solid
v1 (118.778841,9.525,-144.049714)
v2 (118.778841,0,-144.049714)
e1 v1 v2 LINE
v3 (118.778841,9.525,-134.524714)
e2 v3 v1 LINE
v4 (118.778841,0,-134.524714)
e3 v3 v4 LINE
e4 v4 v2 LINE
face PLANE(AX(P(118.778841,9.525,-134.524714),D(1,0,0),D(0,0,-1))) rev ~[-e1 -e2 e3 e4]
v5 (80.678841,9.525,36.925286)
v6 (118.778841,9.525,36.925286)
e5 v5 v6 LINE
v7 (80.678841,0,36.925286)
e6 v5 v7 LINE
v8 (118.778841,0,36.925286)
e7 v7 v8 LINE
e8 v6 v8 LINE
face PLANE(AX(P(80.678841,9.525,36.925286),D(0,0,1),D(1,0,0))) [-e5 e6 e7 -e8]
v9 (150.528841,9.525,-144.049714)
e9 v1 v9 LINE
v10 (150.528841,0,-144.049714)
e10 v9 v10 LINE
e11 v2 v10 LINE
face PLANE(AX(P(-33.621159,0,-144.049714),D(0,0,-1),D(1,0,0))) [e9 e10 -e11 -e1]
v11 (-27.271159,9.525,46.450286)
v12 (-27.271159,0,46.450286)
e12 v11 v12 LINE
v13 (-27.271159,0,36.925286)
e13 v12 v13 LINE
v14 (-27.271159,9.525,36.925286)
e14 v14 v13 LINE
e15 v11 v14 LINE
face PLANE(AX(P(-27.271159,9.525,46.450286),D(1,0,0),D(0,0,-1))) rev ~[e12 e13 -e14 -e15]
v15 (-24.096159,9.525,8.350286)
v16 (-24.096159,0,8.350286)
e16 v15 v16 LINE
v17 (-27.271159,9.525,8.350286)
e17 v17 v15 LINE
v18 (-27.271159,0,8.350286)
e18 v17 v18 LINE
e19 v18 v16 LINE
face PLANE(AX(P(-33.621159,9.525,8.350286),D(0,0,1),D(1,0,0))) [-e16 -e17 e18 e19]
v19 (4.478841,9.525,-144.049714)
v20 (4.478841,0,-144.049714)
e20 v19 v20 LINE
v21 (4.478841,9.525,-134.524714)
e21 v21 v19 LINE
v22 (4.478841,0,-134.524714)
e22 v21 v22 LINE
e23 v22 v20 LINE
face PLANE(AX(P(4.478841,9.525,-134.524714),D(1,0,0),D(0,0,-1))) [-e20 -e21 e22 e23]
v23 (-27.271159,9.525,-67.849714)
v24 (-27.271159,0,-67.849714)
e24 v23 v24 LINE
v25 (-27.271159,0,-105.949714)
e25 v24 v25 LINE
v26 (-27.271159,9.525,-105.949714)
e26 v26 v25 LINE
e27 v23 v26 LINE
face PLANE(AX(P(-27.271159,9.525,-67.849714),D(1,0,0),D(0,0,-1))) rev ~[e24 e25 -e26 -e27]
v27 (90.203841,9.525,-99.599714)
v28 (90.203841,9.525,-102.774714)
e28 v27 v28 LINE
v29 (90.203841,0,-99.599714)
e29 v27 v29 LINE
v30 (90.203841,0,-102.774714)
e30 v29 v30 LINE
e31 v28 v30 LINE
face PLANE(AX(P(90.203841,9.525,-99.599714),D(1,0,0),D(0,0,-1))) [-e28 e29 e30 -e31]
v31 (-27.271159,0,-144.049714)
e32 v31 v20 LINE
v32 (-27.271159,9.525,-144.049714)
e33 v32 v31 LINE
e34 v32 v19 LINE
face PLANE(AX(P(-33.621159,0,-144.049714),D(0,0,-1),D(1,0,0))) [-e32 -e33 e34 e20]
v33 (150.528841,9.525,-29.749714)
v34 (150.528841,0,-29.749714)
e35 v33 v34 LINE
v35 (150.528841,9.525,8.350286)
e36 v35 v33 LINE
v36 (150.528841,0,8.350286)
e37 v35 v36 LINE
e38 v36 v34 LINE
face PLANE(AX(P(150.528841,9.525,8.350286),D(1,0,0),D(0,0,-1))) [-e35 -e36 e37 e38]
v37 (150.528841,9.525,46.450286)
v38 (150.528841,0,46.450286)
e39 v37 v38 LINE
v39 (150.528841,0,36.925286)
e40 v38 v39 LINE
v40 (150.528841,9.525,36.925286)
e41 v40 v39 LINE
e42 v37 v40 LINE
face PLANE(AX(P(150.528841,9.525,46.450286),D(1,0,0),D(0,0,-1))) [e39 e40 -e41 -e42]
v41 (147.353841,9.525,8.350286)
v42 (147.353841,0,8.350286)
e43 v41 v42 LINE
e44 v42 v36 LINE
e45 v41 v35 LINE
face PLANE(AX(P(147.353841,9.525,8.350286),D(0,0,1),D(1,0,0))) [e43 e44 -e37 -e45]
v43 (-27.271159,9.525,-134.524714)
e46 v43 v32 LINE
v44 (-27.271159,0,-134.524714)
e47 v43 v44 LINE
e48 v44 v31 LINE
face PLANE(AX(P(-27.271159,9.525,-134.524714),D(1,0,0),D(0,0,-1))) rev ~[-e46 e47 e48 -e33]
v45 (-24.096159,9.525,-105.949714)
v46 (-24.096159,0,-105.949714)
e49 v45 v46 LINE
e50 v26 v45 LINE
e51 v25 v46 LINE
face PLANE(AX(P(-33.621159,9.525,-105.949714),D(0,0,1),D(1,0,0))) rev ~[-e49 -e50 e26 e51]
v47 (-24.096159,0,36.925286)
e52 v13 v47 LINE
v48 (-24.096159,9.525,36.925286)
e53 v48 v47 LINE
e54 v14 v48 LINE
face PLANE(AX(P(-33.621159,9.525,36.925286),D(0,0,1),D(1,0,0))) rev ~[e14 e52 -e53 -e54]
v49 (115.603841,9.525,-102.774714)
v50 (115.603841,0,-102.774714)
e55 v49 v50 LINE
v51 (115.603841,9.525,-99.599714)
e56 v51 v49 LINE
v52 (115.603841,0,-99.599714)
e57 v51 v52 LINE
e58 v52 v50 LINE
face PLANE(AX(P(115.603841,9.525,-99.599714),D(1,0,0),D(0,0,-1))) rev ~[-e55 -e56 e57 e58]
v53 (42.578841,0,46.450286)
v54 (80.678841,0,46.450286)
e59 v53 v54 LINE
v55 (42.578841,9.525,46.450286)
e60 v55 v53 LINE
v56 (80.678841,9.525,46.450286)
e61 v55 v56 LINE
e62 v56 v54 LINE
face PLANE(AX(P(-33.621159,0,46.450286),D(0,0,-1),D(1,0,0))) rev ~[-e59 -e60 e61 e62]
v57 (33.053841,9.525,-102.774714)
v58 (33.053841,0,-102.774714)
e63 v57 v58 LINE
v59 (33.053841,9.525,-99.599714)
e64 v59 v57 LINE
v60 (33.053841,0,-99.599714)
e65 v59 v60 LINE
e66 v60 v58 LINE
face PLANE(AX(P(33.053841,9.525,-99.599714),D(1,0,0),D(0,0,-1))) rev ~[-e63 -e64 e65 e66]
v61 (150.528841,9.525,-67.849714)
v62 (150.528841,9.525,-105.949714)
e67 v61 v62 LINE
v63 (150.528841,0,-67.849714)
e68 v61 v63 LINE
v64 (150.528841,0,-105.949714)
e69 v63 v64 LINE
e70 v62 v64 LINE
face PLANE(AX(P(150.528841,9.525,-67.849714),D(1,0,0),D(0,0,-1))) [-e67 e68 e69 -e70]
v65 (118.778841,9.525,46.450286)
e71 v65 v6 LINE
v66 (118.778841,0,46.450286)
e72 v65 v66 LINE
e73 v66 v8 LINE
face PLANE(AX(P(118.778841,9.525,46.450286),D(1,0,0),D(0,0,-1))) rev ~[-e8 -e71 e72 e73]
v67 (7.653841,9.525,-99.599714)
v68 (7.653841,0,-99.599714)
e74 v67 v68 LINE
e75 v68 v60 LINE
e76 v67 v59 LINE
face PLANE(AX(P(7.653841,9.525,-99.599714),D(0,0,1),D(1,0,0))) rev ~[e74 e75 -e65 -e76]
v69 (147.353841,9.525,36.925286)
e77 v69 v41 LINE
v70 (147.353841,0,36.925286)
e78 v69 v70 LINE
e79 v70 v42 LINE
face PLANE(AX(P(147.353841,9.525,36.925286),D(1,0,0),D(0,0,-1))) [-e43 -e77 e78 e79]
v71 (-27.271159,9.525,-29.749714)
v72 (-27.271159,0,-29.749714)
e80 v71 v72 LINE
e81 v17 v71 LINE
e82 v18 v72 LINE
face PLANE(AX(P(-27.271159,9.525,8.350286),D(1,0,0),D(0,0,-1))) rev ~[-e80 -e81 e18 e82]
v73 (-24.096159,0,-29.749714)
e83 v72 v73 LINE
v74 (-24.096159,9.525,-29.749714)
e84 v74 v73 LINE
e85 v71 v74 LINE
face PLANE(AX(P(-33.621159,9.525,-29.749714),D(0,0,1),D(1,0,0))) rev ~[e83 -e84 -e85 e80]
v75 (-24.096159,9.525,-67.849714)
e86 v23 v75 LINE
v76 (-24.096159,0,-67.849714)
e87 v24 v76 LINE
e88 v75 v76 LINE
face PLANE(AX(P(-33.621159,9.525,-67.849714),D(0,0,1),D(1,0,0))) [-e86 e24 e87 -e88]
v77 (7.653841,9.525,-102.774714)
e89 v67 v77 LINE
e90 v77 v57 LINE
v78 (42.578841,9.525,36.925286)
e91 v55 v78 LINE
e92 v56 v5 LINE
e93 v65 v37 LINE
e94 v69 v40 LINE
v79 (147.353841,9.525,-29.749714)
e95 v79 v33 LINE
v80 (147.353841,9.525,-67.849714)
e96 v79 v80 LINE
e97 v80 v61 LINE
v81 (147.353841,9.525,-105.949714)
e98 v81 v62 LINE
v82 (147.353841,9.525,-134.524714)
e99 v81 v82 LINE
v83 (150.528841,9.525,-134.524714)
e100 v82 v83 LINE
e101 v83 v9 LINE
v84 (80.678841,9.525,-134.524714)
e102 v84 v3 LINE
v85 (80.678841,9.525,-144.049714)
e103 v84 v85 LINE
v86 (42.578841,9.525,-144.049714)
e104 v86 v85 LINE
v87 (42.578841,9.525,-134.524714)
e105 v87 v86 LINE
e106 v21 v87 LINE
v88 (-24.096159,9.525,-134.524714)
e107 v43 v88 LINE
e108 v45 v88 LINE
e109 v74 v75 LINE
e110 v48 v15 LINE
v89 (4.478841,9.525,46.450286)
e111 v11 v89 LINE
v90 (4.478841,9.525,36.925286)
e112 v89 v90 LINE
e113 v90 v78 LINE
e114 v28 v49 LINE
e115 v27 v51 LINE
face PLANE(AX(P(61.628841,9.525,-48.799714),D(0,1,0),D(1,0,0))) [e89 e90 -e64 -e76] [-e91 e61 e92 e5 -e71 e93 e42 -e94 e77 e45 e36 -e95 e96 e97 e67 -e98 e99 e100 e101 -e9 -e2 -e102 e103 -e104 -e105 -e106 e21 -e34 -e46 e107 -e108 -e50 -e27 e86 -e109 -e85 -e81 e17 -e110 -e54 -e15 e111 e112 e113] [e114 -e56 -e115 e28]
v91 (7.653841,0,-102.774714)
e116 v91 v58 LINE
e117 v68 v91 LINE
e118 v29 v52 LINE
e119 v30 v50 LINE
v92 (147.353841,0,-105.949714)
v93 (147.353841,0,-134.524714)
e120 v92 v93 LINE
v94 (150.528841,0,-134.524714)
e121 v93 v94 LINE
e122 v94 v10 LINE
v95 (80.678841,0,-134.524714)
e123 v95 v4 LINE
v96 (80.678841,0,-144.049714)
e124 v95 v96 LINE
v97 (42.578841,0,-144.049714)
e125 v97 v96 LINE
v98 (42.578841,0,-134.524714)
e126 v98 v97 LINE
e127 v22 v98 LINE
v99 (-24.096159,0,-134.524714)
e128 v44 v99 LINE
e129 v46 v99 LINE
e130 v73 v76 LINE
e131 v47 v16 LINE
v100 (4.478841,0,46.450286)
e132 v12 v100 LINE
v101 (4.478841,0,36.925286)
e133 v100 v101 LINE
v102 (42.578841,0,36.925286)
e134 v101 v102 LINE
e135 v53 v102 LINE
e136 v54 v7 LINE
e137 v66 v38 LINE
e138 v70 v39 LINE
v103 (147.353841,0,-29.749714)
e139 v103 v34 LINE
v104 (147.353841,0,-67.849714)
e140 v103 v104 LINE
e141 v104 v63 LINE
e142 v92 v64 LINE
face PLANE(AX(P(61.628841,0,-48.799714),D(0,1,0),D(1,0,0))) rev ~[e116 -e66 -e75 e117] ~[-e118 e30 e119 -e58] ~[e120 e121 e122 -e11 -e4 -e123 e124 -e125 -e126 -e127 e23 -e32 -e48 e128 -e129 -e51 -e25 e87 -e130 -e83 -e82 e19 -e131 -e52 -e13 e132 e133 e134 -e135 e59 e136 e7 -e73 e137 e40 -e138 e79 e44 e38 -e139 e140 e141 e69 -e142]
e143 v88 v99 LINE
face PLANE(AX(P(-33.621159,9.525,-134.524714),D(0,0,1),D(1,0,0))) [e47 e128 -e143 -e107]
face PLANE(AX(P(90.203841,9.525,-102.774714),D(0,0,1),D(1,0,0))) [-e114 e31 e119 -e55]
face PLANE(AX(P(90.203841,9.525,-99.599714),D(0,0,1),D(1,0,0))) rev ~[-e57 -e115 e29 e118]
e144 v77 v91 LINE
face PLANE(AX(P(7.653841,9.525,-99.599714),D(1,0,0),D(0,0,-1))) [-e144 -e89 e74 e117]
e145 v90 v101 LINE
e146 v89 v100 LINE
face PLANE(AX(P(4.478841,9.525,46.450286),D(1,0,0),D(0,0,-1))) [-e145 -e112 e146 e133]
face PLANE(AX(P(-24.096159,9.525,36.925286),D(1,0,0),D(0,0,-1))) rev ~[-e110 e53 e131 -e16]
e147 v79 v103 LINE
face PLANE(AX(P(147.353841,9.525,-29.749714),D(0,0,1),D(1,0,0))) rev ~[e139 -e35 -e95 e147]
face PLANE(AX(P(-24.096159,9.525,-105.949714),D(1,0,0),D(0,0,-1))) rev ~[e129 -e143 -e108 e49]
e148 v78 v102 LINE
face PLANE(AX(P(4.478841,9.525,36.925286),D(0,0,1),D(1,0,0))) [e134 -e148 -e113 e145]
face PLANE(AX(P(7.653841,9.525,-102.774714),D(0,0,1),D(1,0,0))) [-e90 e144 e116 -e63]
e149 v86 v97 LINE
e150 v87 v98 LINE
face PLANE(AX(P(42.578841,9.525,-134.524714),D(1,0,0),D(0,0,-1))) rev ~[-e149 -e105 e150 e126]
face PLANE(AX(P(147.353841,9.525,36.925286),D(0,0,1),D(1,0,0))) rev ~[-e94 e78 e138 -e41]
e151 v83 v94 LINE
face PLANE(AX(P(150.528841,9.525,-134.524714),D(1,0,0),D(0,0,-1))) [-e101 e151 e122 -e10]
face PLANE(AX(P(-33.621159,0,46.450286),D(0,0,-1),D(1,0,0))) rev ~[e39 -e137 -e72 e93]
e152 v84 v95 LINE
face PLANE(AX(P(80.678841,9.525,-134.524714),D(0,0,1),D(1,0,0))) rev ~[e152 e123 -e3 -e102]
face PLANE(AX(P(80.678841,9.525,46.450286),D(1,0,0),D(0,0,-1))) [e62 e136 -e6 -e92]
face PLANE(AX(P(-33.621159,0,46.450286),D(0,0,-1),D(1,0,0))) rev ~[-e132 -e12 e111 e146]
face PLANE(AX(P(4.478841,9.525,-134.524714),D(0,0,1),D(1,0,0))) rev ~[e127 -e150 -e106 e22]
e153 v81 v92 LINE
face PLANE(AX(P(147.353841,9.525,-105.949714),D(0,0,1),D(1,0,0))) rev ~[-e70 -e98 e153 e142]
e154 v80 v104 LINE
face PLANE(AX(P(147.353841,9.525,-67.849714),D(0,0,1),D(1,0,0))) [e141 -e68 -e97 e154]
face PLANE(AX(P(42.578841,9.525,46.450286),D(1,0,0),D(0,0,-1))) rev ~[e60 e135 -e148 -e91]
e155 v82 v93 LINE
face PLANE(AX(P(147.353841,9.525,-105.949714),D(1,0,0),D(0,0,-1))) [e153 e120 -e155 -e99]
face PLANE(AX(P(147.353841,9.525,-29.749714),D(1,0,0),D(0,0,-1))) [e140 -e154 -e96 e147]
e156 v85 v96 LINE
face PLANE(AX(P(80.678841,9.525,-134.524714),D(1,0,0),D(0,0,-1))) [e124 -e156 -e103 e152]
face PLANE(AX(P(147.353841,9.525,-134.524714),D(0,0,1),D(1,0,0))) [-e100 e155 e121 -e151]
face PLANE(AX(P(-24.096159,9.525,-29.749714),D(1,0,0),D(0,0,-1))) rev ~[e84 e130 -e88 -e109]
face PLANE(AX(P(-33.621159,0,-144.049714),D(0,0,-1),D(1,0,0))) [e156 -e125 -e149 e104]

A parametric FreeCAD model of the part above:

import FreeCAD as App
import Part
import Sketcher

V = App.Vector
Q = App.Units.Quantity


def add_polygon(sketch, points):
    """Adds a closed chain of lines whose ends are joined by coincident constraints."""
    first, n = sketch.GeometryCount, len(points)
    for a, b in zip(points, points[1:] + points[:1]):
        sketch.addGeometry(Part.LineSegment(App.Vector(*a, 0), App.Vector(*b, 0)), False)
    for i in range(n):
        sketch.addConstraint(Sketcher.Constraint("Coincident", first + i, 2, first + (i + 1) % n, 1))

doc = App.newDocument("Part")
body = doc.addObject("PartDesign::Body", "Body")

sketch1 = doc.addObject("Sketcher::SketchObject", "Sketch")
body.addObject(sketch1)
sketch1.AttachmentSupport = (doc.XZ_Plane, [""])
sketch1.MapMode = "FlatFace"
add_polygon(sketch1, [(-34, -144), (-34, 46), (157, 46), (157, -144)])
sketch1.addConstraint(Sketcher.Constraint("Vertical", 0))
sketch1.addConstraint(Sketcher.Constraint("Horizontal", 1))
sketch1.addConstraint(Sketcher.Constraint("Vertical", 2))
sketch1.addConstraint(Sketcher.Constraint("Horizontal", 3))
sketch1.addConstraint(Sketcher.Constraint("Equal", 3, 0))
sketch1.addConstraint(Sketcher.Constraint("DistanceX", 1, 1, 1, 2, Q("7.5 in")))
sketch1.addConstraint(Sketcher.Constraint("DistanceX", 0, 2, -1, 1, 33.621159))
sketch1.addConstraint(Sketcher.Constraint("DistanceY", -1, 1, 0, 2, 46.450286))
pad1 = doc.addObject("PartDesign::Pad", "Pad")
body.addObject(pad1)
pad1.Profile = sketch1
pad1.Length = Q("0.375 in")
pad1.Reversed = True

sketch2 = doc.addObject("Sketcher::SketchObject", "Sketch001")
body.addObject(sketch2)
sketch2.AttachmentSupport = (doc.XZ_Plane, [""])
sketch2.MapMode = "FlatFace"
sketch2.AttachmentOffset = App.Placement(V(0, 0, -0.375 * 25.4), App.Rotation())
add_polygon(sketch2, [(81, 37), (81, 46), (119, 46), (119, 37)])
sketch2.addConstraint(Sketcher.Constraint("Vertical", 0))
sketch2.addConstraint(Sketcher.Constraint("Horizontal", 1))
sketch2.addConstraint(Sketcher.Constraint("Vertical", 2))
sketch2.addConstraint(Sketcher.Constraint("Horizontal", 3))
sketch2.addConstraint(Sketcher.Constraint("DistanceX", 1, 1, 1, 2, Q("1.5 in")))
sketch2.addConstraint(Sketcher.Constraint("DistanceY", 0, 1, 0, 2, Q("0.375 in")))
sketch2.addConstraint(Sketcher.Constraint("DistanceX", -1, 1, 0, 2, 80.678841))
sketch2.addConstraint(Sketcher.Constraint("DistanceY", -1, 1, 0, 2, 46.450286))
pocket1 = doc.addObject("PartDesign::Pocket", "Pocket")
body.addObject(pocket1)
pocket1.Profile = sketch2
pocket1.Length = Q("0.375 in")
pocket1.Reversed = True

sketch3 = doc.addObject("Sketcher::SketchObject", "Sketch002")
body.addObject(sketch3)
sketch3.AttachmentSupport = (doc.XZ_Plane, [""])
sketch3.MapMode = "FlatFace"
sketch3.AttachmentOffset = App.Placement(V(0, 0, -0.375 * 25.4), App.Rotation())
add_polygon(sketch3, [(4, 37), (4, 46), (43, 46), (43, 37)])
sketch3.addConstraint(Sketcher.Constraint("Vertical", 0))
sketch3.addConstraint(Sketcher.Constraint("Horizontal", 1))
sketch3.addConstraint(Sketcher.Constraint("Vertical", 2))
sketch3.addConstraint(Sketcher.Constraint("Horizontal", 3))
sketch3.addConstraint(Sketcher.Constraint("DistanceX", 1, 1, 1, 2, Q("1.5 in")))
sketch3.addConstraint(Sketcher.Constraint("DistanceY", 0, 1, 0, 2, Q("0.375 in")))
sketch3.addConstraint(Sketcher.Constraint("DistanceX", -1, 1, 0, 2, 4.478841))
sketch3.addConstraint(Sketcher.Constraint("DistanceY", -1, 1, 0, 2, 46.450286))
pocket2 = doc.addObject("PartDesign::Pocket", "Pocket001")
body.addObject(pocket2)
pocket2.Profile = sketch3
pocket2.Length = Q("0.375 in")
pocket2.Reversed = True

sketch4 = doc.addObject("Sketcher::SketchObject", "Sketch003")
body.addObject(sketch4)
sketch4.AttachmentSupport = (doc.XZ_Plane, [""])
sketch4.MapMode = "FlatFace"
sketch4.AttachmentOffset = App.Placement(V(0, 0, -0.375 * 25.4), App.Rotation())
add_polygon(sketch4, [(147, 8), (147, 37), (157, 37), (157, 8)])
sketch4.addConstraint(Sketcher.Constraint("Vertical", 0))
sketch4.addConstraint(Sketcher.Constraint("Horizontal", 1))
sketch4.addConstraint(Sketcher.Constraint("Vertical", 2))
sketch4.addConstraint(Sketcher.Constraint("Horizontal", 3))
sketch4.addConstraint(Sketcher.Constraint("DistanceX", 1, 1, 1, 2, Q("0.375 in")))
sketch4.addConstraint(Sketcher.Constraint("DistanceY", 0, 1, 0, 2, Q("1.125 in")))
sketch4.addConstraint(Sketcher.Constraint("DistanceX", -1, 1, 0, 2, 147.353841))
sketch4.addConstraint(Sketcher.Constraint("DistanceY", -1, 1, 0, 2, 36.925286))
pocket3 = doc.addObject("PartDesign::Pocket", "Pocket002")
body.addObject(pocket3)
pocket3.Profile = sketch4
pocket3.Length = Q("0.375 in")
pocket3.Reversed = True

sketch5 = doc.addObject("Sketcher::SketchObject", "Sketch004")
body.addObject(sketch5)
sketch5.AttachmentSupport = (doc.XZ_Plane, [""])
sketch5.MapMode = "FlatFace"
sketch5.AttachmentOffset = App.Placement(V(0, 0, -0.375 * 25.4), App.Rotation())
add_polygon(sketch5, [(147, -68), (147, -30), (157, -30), (157, -68)])
sketch5.addConstraint(Sketcher.Constraint("Vertical", 0))
sketch5.addConstraint(Sketcher.Constraint("Horizontal", 1))
sketch5.addConstraint(Sketcher.Constraint("Vertical", 2))
sketch5.addConstraint(Sketcher.Constraint("Horizontal", 3))
sketch5.addConstraint(Sketcher.Constraint("DistanceY", 0, 1, 0, 2, Q("1.5 in")))
sketch5.addConstraint(Sketcher.Constraint("DistanceX", 1, 1, 1, 2, Q("0.375 in")))
sketch5.addConstraint(Sketcher.Constraint("DistanceX", -1, 1, 0, 2, 147.353841))
sketch5.addConstraint(Sketcher.Constraint("DistanceY", 0, 2, -1, 1, 29.749714))
pocket4 = doc.addObject("PartDesign::Pocket", "Pocket003")
body.addObject(pocket4)
pocket4.Profile = sketch5
pocket4.Length = Q("0.375 in")
pocket4.Reversed = True

sketch6 = doc.addObject("Sketcher::SketchObject", "Sketch005")
body.addObject(sketch6)
sketch6.AttachmentSupport = (doc.XZ_Plane, [""])
sketch6.MapMode = "FlatFace"
sketch6.AttachmentOffset = App.Placement(V(0, 0, -0.375 * 25.4), App.Rotation())
add_polygon(sketch6, [(147, -135), (147, -106), (157, -106), (157, -135)])
sketch6.addConstraint(Sketcher.Constraint("Vertical", 0))
sketch6.addConstraint(Sketcher.Constraint("Horizontal", 1))
sketch6.addConstraint(Sketcher.Constraint("Vertical", 2))
sketch6.addConstraint(Sketcher.Constraint("Horizontal", 3))
sketch6.addConstraint(Sketcher.Constraint("DistanceX", 1, 1, 1, 2, Q("0.375 in")))
sketch6.addConstraint(Sketcher.Constraint("DistanceY", 0, 1, 0, 2, Q("1.125 in")))
sketch6.addConstraint(Sketcher.Constraint("DistanceX", -1, 1, 0, 2, 147.353841))
sketch6.addConstraint(Sketcher.Constraint("DistanceY", 0, 2, -1, 1, 105.949714))
pocket5 = doc.addObject("PartDesign::Pocket", "Pocket004")
body.addObject(pocket5)
pocket5.Profile = sketch6
pocket5.Length = Q("0.375 in")
pocket5.Reversed = True

sketch7 = doc.addObject("Sketcher::SketchObject", "Sketch006")
body.addObject(sketch7)
sketch7.AttachmentSupport = (doc.XZ_Plane, [""])
sketch7.MapMode = "FlatFace"
sketch7.AttachmentOffset = App.Placement(V(0, 0, -0.375 * 25.4), App.Rotation())
add_polygon(sketch7, [(81, -144), (81, -135), (119, -135), (119, -144)])
sketch7.addConstraint(Sketcher.Constraint("Vertical", 0))
sketch7.addConstraint(Sketcher.Constraint("Horizontal", 1))
sketch7.addConstraint(Sketcher.Constraint("Vertical", 2))
sketch7.addConstraint(Sketcher.Constraint("Horizontal", 3))
sketch7.addConstraint(Sketcher.Constraint("DistanceX", 1, 1, 1, 2, Q("1.5 in")))
sketch7.addConstraint(Sketcher.Constraint("DistanceY", 0, 1, 0, 2, Q("0.375 in")))
sketch7.addConstraint(Sketcher.Constraint("DistanceX", -1, 1, 0, 2, 80.678841))
sketch7.addConstraint(Sketcher.Constraint("DistanceY", 0, 2, -1, 1, 134.524714))
pocket6 = doc.addObject("PartDesign::Pocket", "Pocket005")
body.addObject(pocket6)
pocket6.Profile = sketch7
pocket6.Length = Q("0.375 in")
pocket6.Reversed = True

sketch8 = doc.addObject("Sketcher::SketchObject", "Sketch007")
body.addObject(sketch8)
sketch8.AttachmentSupport = (doc.XZ_Plane, [""])
sketch8.MapMode = "FlatFace"
sketch8.AttachmentOffset = App.Placement(V(0, 0, -0.375 * 25.4), App.Rotation())
add_polygon(sketch8, [(4, -144), (4, -135), (43, -135), (43, -144)])
sketch8.addConstraint(Sketcher.Constraint("Vertical", 0))
sketch8.addConstraint(Sketcher.Constraint("Horizontal", 1))
sketch8.addConstraint(Sketcher.Constraint("Vertical", 2))
sketch8.addConstraint(Sketcher.Constraint("Horizontal", 3))
sketch8.addConstraint(Sketcher.Constraint("DistanceX", 1, 1, 1, 2, Q("1.5 in")))
sketch8.addConstraint(Sketcher.Constraint("DistanceY", 0, 1, 0, 2, Q("0.375 in")))
sketch8.addConstraint(Sketcher.Constraint("DistanceX", -1, 1, 0, 2, 4.478841))
sketch8.addConstraint(Sketcher.Constraint("DistanceY", 0, 2, -1, 1, 134.524714))
pocket7 = doc.addObject("PartDesign::Pocket", "Pocket006")
body.addObject(pocket7)
pocket7.Profile = sketch8
pocket7.Length = Q("0.375 in")
pocket7.Reversed = True

sketch9 = doc.addObject("Sketcher::SketchObject", "Sketch008")
body.addObject(sketch9)
sketch9.AttachmentSupport = (doc.XZ_Plane, [""])
sketch9.MapMode = "FlatFace"
sketch9.AttachmentOffset = App.Placement(V(0, 0, -0.375 * 25.4), App.Rotation())
add_polygon(sketch9, [(-34, -135), (-34, -106), (-24, -106), (-24, -135)])
sketch9.addConstraint(Sketcher.Constraint("Vertical", 0))
sketch9.addConstraint(Sketcher.Constraint("Horizontal", 1))
sketch9.addConstraint(Sketcher.Constraint("Vertical", 2))
sketch9.addConstraint(Sketcher.Constraint("Horizontal", 3))
sketch9.addConstraint(Sketcher.Constraint("DistanceX", 1, 1, 1, 2, Q("0.375 in")))
sketch9.addConstraint(Sketcher.Constraint("DistanceY", 0, 1, 0, 2, Q("1.125 in")))
sketch9.addConstraint(Sketcher.Constraint("DistanceX", 0, 2, -1, 1, 33.621159))
sketch9.addConstraint(Sketcher.Constraint("DistanceY", 0, 2, -1, 1, 105.949714))
pocket8 = doc.addObject("PartDesign::Pocket", "Pocket007")
body.addObject(pocket8)
pocket8.Profile = sketch9
pocket8.Length = Q("1.5 in")
pocket8.Reversed = True

sketch10 = doc.addObject("Sketcher::SketchObject", "Sketch009")
body.addObject(sketch10)
sketch10.AttachmentSupport = (doc.XZ_Plane, [""])
sketch10.MapMode = "FlatFace"
sketch10.AttachmentOffset = App.Placement(V(0, 0, -0.375 * 25.4), App.Rotation())
add_polygon(sketch10, [(-34, -68), (-34, -30), (-24, -30), (-24, -68)])
sketch10.addConstraint(Sketcher.Constraint("Vertical", 0))
sketch10.addConstraint(Sketcher.Constraint("Horizontal", 1))
sketch10.addConstraint(Sketcher.Constraint("Vertical", 2))
sketch10.addConstraint(Sketcher.Constraint("Horizontal", 3))
sketch10.addConstraint(Sketcher.Constraint("DistanceY", 0, 1, 0, 2, Q("1.5 in")))
sketch10.addConstraint(Sketcher.Constraint("DistanceX", 1, 1, 1, 2, Q("0.375 in")))
sketch10.addConstraint(Sketcher.Constraint("DistanceX", 0, 2, -1, 1, 33.621159))
sketch10.addConstraint(Sketcher.Constraint("DistanceY", 0, 2, -1, 1, 29.749714))
pocket9 = doc.addObject("PartDesign::Pocket", "Pocket008")
body.addObject(pocket9)
pocket9.Profile = sketch10
pocket9.Length = Q("0.375 in")
pocket9.Reversed = True

sketch11 = doc.addObject("Sketcher::SketchObject", "Sketch010")
body.addObject(sketch11)
sketch11.AttachmentSupport = (doc.XZ_Plane, [""])
sketch11.MapMode = "FlatFace"
sketch11.AttachmentOffset = App.Placement(V(0, 0, -0.375 * 25.4), App.Rotation())
add_polygon(sketch11, [(-34, 8), (-34, 37), (-24, 37), (-24, 8)])
sketch11.addConstraint(Sketcher.Constraint("Vertical", 0))
sketch11.addConstraint(Sketcher.Constraint("Horizontal", 1))
sketch11.addConstraint(Sketcher.Constraint("Vertical", 2))
sketch11.addConstraint(Sketcher.Constraint("Horizontal", 3))
sketch11.addConstraint(Sketcher.Constraint("DistanceX", 1, 1, 1, 2, Q("0.375 in")))
sketch11.addConstraint(Sketcher.Constraint("DistanceY", 0, 1, 0, 2, Q("1.125 in")))
sketch11.addConstraint(Sketcher.Constraint("DistanceX", 0, 2, -1, 1, 33.621159))
sketch11.addConstraint(Sketcher.Constraint("DistanceY", -1, 1, 0, 2, 36.925286))
pocket10 = doc.addObject("PartDesign::Pocket", "Pocket009")
body.addObject(pocket10)
pocket10.Profile = sketch11
pocket10.Length = Q("0.375 in")
pocket10.Reversed = True

sketch12 = doc.addObject("Sketcher::SketchObject", "Sketch011")
body.addObject(sketch12)
sketch12.AttachmentSupport = (doc.XZ_Plane, [""])
sketch12.MapMode = "FlatFace"
sketch12.AttachmentOffset = App.Placement(V(0, 0, -0.375 * 25.4), App.Rotation())
add_polygon(sketch12, [(7.7, -102.8), (7.7, -99.6), (33.1, -99.6), (33.1, -102.8)])
add_polygon(sketch12, [(90.2, -102.8), (90.2, -99.6), (115.6, -99.6), (115.6, -102.8)])
sketch12.addConstraint(Sketcher.Constraint("Vertical", 0))
sketch12.addConstraint(Sketcher.Constraint("Horizontal", 1))
sketch12.addConstraint(Sketcher.Constraint("Vertical", 2))
sketch12.addConstraint(Sketcher.Constraint("Horizontal", 3))
sketch12.addConstraint(Sketcher.Constraint("Vertical", 4))
sketch12.addConstraint(Sketcher.Constraint("Horizontal", 5))
sketch12.addConstraint(Sketcher.Constraint("Vertical", 6))
sketch12.addConstraint(Sketcher.Constraint("Horizontal", 7))
sketch12.addConstraint(Sketcher.Constraint("Horizontal", 1, 2, 4, 2))
sketch12.addConstraint(Sketcher.Constraint("Horizontal", 3, 2, 6, 2))
sketch12.addConstraint(Sketcher.Constraint("Equal", 3, 5))
sketch12.addConstraint(Sketcher.Constraint("DistanceX", 1, 1, 1, 2, Q("1 in")))
sketch12.addConstraint(Sketcher.Constraint("DistanceY", 0, 1, 0, 2, Q("0.125 in")))
sketch12.addConstraint(Sketcher.Constraint("DistanceX", 1, 2, 4, 2, Q("2.25 in")))
sketch12.addConstraint(Sketcher.Constraint("DistanceX", -1, 1, 0, 2, 7.653841))
sketch12.addConstraint(Sketcher.Constraint("DistanceY", 0, 2, -1, 1, 99.599714))
pocket11 = doc.addObject("PartDesign::Pocket", "Pocket010")
body.addObject(pocket11)
pocket11.Profile = sketch12
pocket11.Length = Q("0.5 in")
pocket11.Reversed = True

sketch13 = doc.addObject("Sketcher::SketchObject", "Sketch012")
body.addObject(sketch13)
sketch13.AttachmentSupport = (doc.XZ_Plane, [""])
sketch13.MapMode = "FlatFace"
sketch13.AttachmentOffset = App.Placement(V(0, 0, -0.375 * 25.4), App.Rotation())
add_polygon(sketch13, [(-34, -144), (-34, -135), (-27, -135), (-27, -144)])
sketch13.addConstraint(Sketcher.Constraint("Vertical", 0))
sketch13.addConstraint(Sketcher.Constraint("Horizontal", 1))
sketch13.addConstraint(Sketcher.Constraint("Vertical", 2))
sketch13.addConstraint(Sketcher.Constraint("Horizontal", 3))
sketch13.addConstraint(Sketcher.Constraint("DistanceX", 1, 1, 1, 2, Q("0.25 in")))
sketch13.addConstraint(Sketcher.Constraint("DistanceY", 0, 1, 0, 2, Q("0.375 in")))
sketch13.addConstraint(Sketcher.Constraint("DistanceX", 0, 2, -1, 1, 33.621159))
sketch13.addConstraint(Sketcher.Constraint("DistanceY", 0, 2, -1, 1, 134.524714))
pocket12 = doc.addObject("PartDesign::Pocket", "Pocket011")
body.addObject(pocket12)
pocket12.Profile = sketch13
pocket12.Type = "ThroughAll"
pocket12.Reversed = True

sketch14 = doc.addObject("Sketcher::SketchObject", "Sketch013")
body.addObject(sketch14)
sketch14.AttachmentSupport = (doc.XZ_Plane, [""])
sketch14.MapMode = "FlatFace"
sketch14.AttachmentOffset = App.Placement(V(0, 0, -0.375 * 25.4), App.Rotation())
add_polygon(sketch14, [(-34, -106), (-34, -68), (-27, -68), (-27, -106)])
add_polygon(sketch14, [(-34, -30), (-34, 8), (-27, 8), (-27, -30)])
add_polygon(sketch14, [(-34, 37), (-34, 46), (-27, 46), (-27, 37)])
add_polygon(sketch14, [(151, 37), (151, 46), (157, 46), (157, 37)])
add_polygon(sketch14, [(151, -30), (151, 8), (157, 8), (157, -30)])
add_polygon(sketch14, [(151, -106), (151, -68), (157, -68), (157, -106)])
add_polygon(sketch14, [(151, -144), (151, -135), (157, -135), (157, -144)])
sketch14.addConstraint(Sketcher.Constraint("Vertical", 0))
sketch14.addConstraint(Sketcher.Constraint("Horizontal", 1))
sketch14.addConstraint(Sketcher.Constraint("Vertical", 2))
sketch14.addConstraint(Sketcher.Constraint("Horizontal", 3))
sketch14.addConstraint(Sketcher.Constraint("Vertical", 4))
sketch14.addConstraint(Sketcher.Constraint("Horizontal", 5))
sketch14.addConstraint(Sketcher.Constraint("Vertical", 6))
sketch14.addConstraint(Sketcher.Constraint("Horizontal", 7))
sketch14.addConstraint(Sketcher.Constraint("Vertical", 8))
sketch14.addConstraint(Sketcher.Constraint("Horizontal", 9))
sketch14.addConstraint(Sketcher.Constraint("Vertical", 10))
sketch14.addConstraint(Sketcher.Constraint("Horizontal", 11))
sketch14.addConstraint(Sketcher.Constraint("Vertical", 12))
sketch14.addConstraint(Sketcher.Constraint("Horizontal", 13))
sketch14.addConstraint(Sketcher.Constraint("Vertical", 14))
sketch14.addConstraint(Sketcher.Constraint("Horizontal", 15))
sketch14.addConstraint(Sketcher.Constraint("Vertical", 16))
sketch14.addConstraint(Sketcher.Constraint("Horizontal", 17))
sketch14.addConstraint(Sketcher.Constraint("Vertical", 18))
sketch14.addConstraint(Sketcher.Constraint("Horizontal", 19))
sketch14.addConstraint(Sketcher.Constraint("Vertical", 20))
sketch14.addConstraint(Sketcher.Constraint("Horizontal", 21))
sketch14.addConstraint(Sketcher.Constraint("Vertical", 22))
sketch14.addConstraint(Sketcher.Constraint("Horizontal", 23))
sketch14.addConstraint(Sketcher.Constraint("Vertical", 24))
sketch14.addConstraint(Sketcher.Constraint("Horizontal", 25))
sketch14.addConstraint(Sketcher.Constraint("Vertical", 26))
sketch14.addConstraint(Sketcher.Constraint("Horizontal", 27))
sketch14.addConstraint(Sketcher.Constraint("Horizontal", 9, 2, 12, 2))
sketch14.addConstraint(Sketcher.Constraint("Horizontal", 11, 2, 14, 2))
sketch14.addConstraint(Sketcher.Constraint("Horizontal", 5, 2, 16, 2))
sketch14.addConstraint(Sketcher.Constraint("Horizontal", 7, 2, 18, 2))
sketch14.addConstraint(Sketcher.Constraint("Horizontal", 1, 2, 20, 2))
sketch14.addConstraint(Sketcher.Constraint("Horizontal", 3, 2, 22, 2))
sketch14.addConstraint(Sketcher.Constraint("Vertical", 3, 2, 4, 2))
sketch14.addConstraint(Sketcher.Constraint("Vertical", 2, 2, 5, 2))
sketch14.addConstraint(Sketcher.Constraint("Vertical", 7, 2, 8, 2))
sketch14.addConstraint(Sketcher.Constraint("Vertical", 6, 2, 9, 2))
sketch14.addConstraint(Sketcher.Constraint("Vertical", 15, 2, 16, 2))
sketch14.addConstraint(Sketcher.Constraint("Vertical", 14, 2, 17, 2))
sketch14.addConstraint(Sketcher.Constraint("Vertical", 19, 2, 20, 2))
sketch14.addConstraint(Sketcher.Constraint("Vertical", 18, 2, 21, 2))
sketch14.addConstraint(Sketcher.Constraint("Vertical", 23, 2, 24, 2))
sketch14.addConstraint(Sketcher.Constraint("Vertical", 22, 2, 25, 2))
sketch14.addConstraint(Sketcher.Constraint("Equal", 11, 13))
sketch14.addConstraint(Sketcher.Constraint("Equal", 2, 4))
sketch14.addConstraint(Sketcher.Constraint("Equal", 14, 24))
sketch14.addConstraint(Sketcher.Constraint("DistanceY", 0, 1, 0, 2, Q("1.5 in")))
sketch14.addConstraint(Sketcher.Constraint("DistanceY", 0, 2, 4, 2, Q("3 in")))
sketch14.addConstraint(Sketcher.Constraint("DistanceY", 7, 2, 8, 2, Q("3 in")))
sketch14.addConstraint(Sketcher.Constraint("DistanceX", 9, 2, 12, 2, Q("7 in")))
sketch14.addConstraint(Sketcher.Constraint("DistanceY", 26, 2, 21, 2, Q("3 in")))
sketch14.addConstraint(Sketcher.Constraint("DistanceX", 1, 1, 1, 2, Q("0.25 in")))
sketch14.addConstraint(Sketcher.Constraint("DistanceY", 8, 1, 8, 2, Q("0.375 in")))
sketch14.addConstraint(Sketcher.Constraint("DistanceX", 0, 2, -1, 1, 33.621159))
sketch14.addConstraint(Sketcher.Constraint("DistanceY", 0, 2, -1, 1, 67.849714))
pocket13 = doc.addObject("PartDesign::Pocket", "Pocket012")
body.addObject(pocket13)
pocket13.Profile = sketch14
pocket13.Type = "ThroughAll"
pocket13.Reversed = True

sketch15 = doc.addObject("Sketcher::SketchObject", "Sketch014")
body.addObject(sketch15)
sketch15.AttachmentSupport = (doc.XZ_Plane, [""])
sketch15.MapMode = "FlatFace"
sketch15.AttachmentOffset = App.Placement(V(0, 0, -0.375 * 25.4), App.Rotation())
add_polygon(sketch15, [(-34, -106), (-34, -68), (-27, -68), (-27, -106)])
add_polygon(sketch15, [(-34, -30), (-34, 8), (-27, 8), (-27, -30)])
add_polygon(sketch15, [(-34, 37), (-34, 46), (-27, 46), (-27, 37)])
add_polygon(sketch15, [(151, 37), (151, 46), (157, 46), (157, 37)])
add_polygon(sketch15, [(151, -30), (151, 8), (157, 8), (157, -30)])
add_polygon(sketch15, [(151, -106), (151, -68), (157, -68), (157, -106)])
add_polygon(sketch15, [(151, -144), (151, -135), (157, -135), (157, -144)])
sketch15.addConstraint(Sketcher.Constraint("Vertical", 0))
sketch15.addConstraint(Sketcher.Constraint("Horizontal", 1))
sketch15.addConstraint(Sketcher.Constraint("Vertical", 2))
sketch15.addConstraint(Sketcher.Constraint("Horizontal", 3))
sketch15.addConstraint(Sketcher.Constraint("Vertical", 4))
sketch15.addConstraint(Sketcher.Constraint("Horizontal", 5))
sketch15.addConstraint(Sketcher.Constraint("Vertical", 6))
sketch15.addConstraint(Sketcher.Constraint("Horizontal", 7))
sketch15.addConstraint(Sketcher.Constraint("Vertical", 8))
sketch15.addConstraint(Sketcher.Constraint("Horizontal", 9))
sketch15.addConstraint(Sketcher.Constraint("Vertical", 10))
sketch15.addConstraint(Sketcher.Constraint("Horizontal", 11))
sketch15.addConstraint(Sketcher.Constraint("Vertical", 12))
sketch15.addConstraint(Sketcher.Constraint("Horizontal", 13))
sketch15.addConstraint(Sketcher.Constraint("Vertical", 14))
sketch15.addConstraint(Sketcher.Constraint("Horizontal", 15))
sketch15.addConstraint(Sketcher.Constraint("Vertical", 16))
sketch15.addConstraint(Sketcher.Constraint("Horizontal", 17))
sketch15.addConstraint(Sketcher.Constraint("Vertical", 18))
sketch15.addConstraint(Sketcher.Constraint("Horizontal", 19))
sketch15.addConstraint(Sketcher.Constraint("Vertical", 20))
sketch15.addConstraint(Sketcher.Constraint("Horizontal", 21))
sketch15.addConstraint(Sketcher.Constraint("Vertical", 22))
sketch15.addConstraint(Sketcher.Constraint("Horizontal", 23))
sketch15.addConstraint(Sketcher.Constraint("Vertical", 24))
sketch15.addConstraint(Sketcher.Constraint("Horizontal", 25))
sketch15.addConstraint(Sketcher.Constraint("Vertical", 26))
sketch15.addConstraint(Sketcher.Constraint("Horizontal", 27))
sketch15.addConstraint(Sketcher.Constraint("Horizontal", 9, 2, 12, 2))
sketch15.addConstraint(Sketcher.Constraint("Horizontal", 11, 2, 14, 2))
sketch15.addConstraint(Sketcher.Constraint("Horizontal", 5, 2, 16, 2))
sketch15.addConstraint(Sketcher.Constraint("Horizontal", 7, 2, 18, 2))
sketch15.addConstraint(Sketcher.Constraint("Horizontal", 1, 2, 20, 2))
sketch15.addConstraint(Sketcher.Constraint("Horizontal", 3, 2, 22, 2))
sketch15.addConstraint(Sketcher.Constraint("Vertical", 3, 2, 4, 2))
sketch15.addConstraint(Sketcher.Constraint("Vertical", 2, 2, 5, 2))
sketch15.addConstraint(Sketcher.Constraint("Vertical", 7, 2, 8, 2))
sketch15.addConstraint(Sketcher.Constraint("Vertical", 6, 2, 9, 2))
sketch15.addConstraint(Sketcher.Constraint("Vertical", 15, 2, 16, 2))
sketch15.addConstraint(Sketcher.Constraint("Vertical", 14, 2, 17, 2))
sketch15.addConstraint(Sketcher.Constraint("Vertical", 19, 2, 20, 2))
sketch15.addConstraint(Sketcher.Constraint("Vertical", 18, 2, 21, 2))
sketch15.addConstraint(Sketcher.Constraint("Vertical", 23, 2, 24, 2))
sketch15.addConstraint(Sketcher.Constraint("Vertical", 22, 2, 25, 2))
sketch15.addConstraint(Sketcher.Constraint("Equal", 11, 13))
sketch15.addConstraint(Sketcher.Constraint("Equal", 2, 4))
sketch15.addConstraint(Sketcher.Constraint("Equal", 14, 24))
sketch15.addConstraint(Sketcher.Constraint("DistanceY", 0, 1, 0, 2, Q("1.5 in")))
sketch15.addConstraint(Sketcher.Constraint("DistanceY", 0, 2, 4, 2, Q("3 in")))
sketch15.addConstraint(Sketcher.Constraint("DistanceY", 7, 2, 8, 2, Q("3 in")))
sketch15.addConstraint(Sketcher.Constraint("DistanceX", 9, 2, 12, 2, Q("7 in")))
sketch15.addConstraint(Sketcher.Constraint("DistanceY", 26, 2, 21, 2, Q("3 in")))
sketch15.addConstraint(Sketcher.Constraint("DistanceX", 1, 1, 1, 2, Q("0.25 in")))
sketch15.addConstraint(Sketcher.Constraint("DistanceY", 8, 1, 8, 2, Q("0.375 in")))
sketch15.addConstraint(Sketcher.Constraint("DistanceX", 0, 2, -1, 1, 33.621159))
sketch15.addConstraint(Sketcher.Constraint("DistanceY", 0, 2, -1, 1, 67.849714))
pocket14 = doc.addObject("PartDesign::Pocket", "Pocket013")
body.addObject(pocket14)
pocket14.Profile = sketch15
pocket14.Type = "ThroughAll"
pocket14.Reversed = True

doc.recompute()
